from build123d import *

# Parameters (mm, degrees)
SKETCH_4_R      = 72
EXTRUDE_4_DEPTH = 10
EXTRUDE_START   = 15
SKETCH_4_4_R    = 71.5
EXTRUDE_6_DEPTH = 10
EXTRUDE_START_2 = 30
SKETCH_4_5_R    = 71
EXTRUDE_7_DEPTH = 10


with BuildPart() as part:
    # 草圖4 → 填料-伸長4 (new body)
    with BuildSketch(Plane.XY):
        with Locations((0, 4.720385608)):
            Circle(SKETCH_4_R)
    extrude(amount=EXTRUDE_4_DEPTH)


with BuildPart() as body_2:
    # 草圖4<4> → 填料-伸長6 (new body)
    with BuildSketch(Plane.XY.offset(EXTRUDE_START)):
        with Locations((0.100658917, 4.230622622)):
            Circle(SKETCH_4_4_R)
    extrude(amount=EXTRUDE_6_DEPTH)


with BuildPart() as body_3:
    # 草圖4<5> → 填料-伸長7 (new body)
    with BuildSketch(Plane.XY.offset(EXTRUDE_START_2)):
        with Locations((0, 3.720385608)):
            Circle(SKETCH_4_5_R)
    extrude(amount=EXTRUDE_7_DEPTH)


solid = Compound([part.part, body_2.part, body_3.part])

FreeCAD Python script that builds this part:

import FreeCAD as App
import Part
import Sketcher
from FreeCAD import Vector

doc = App.newDocument("Part")
params = doc.addObject("Spreadsheet::Sheet", "Params")
for row, (alias, value) in enumerate([
    ("sketch1_diameter", "144 mm"),
    ("pad1_length", "10 mm"),
    ("sketch2_diameter", "143 mm"),
    ("pad2_length", "10 mm"),
    ("sketch3_diameter", "142 mm"),
    ("pad3_length", "10 mm"),
], start=1):
    params.set(f"A{row}", alias)
    params.set(f"B{row}", "=" + value)
    params.setAlias(f"B{row}", alias)

body = doc.addObject("PartDesign::Body", "Body")

sketch1 = doc.addObject("Sketcher::SketchObject", "Sketch")
body.addObject(sketch1)
sketch1.AttachmentSupport = (doc.XY_Plane, [""])
sketch1.MapMode = "FlatFace"
sketch1.addGeometry(Part.Circle(Vector(0, 4.720386, 0), Vector(0, 0, 1), 72), False)
sketch1.addConstraint([
    Sketcher.Constraint("PointOnObject", 0, 3, -2),
    Sketcher.Constraint("Diameter", 0, 144.0),
    Sketcher.Constraint("DistanceY", -1, 1, 0, 3, 4.720386),
])
sketch1.setExpression("Constraints[1]", "Params.sketch1_diameter")
pad1 = doc.addObject("PartDesign::Pad", "Pad")
body.addObject(pad1)
pad1.Profile = sketch1
pad1.setExpression("Length", "Params.pad1_length")
body2 = doc.addObject("PartDesign::Body", "Body001")

sketch2 = doc.addObject("Sketcher::SketchObject", "Sketch001")
body2.addObject(sketch2)
sketch2.AttachmentSupport = (doc.getObject("XY_Plane001"), [""])
sketch2.MapMode = "FlatFace"
sketch2.AttachmentOffset = App.Placement(Vector(0, 0, 15), App.Rotation())
sketch2.addGeometry(Part.Circle(Vector(0.100659, 4.230623, 0), Vector(0, 0, 1), 71.5), False)
sketch2.addConstraint([
    Sketcher.Constraint("Diameter", 0, 143.0),
    Sketcher.Constraint("DistanceX", -1, 1, 0, 3, 0.100659),
    Sketcher.Constraint("DistanceY", -1, 1, 0, 3, 4.230623),
])
sketch2.setExpression("Constraints[0]", "Params.sketch2_diameter")
pad2 = doc.addObject("PartDesign::Pad", "Pad001")
body2.addObject(pad2)
pad2.Profile = sketch2
pad2.setExpression("Length", "Params.pad2_length")
body3 = doc.addObject("PartDesign::Body", "Body002")

sketch3 = doc.addObject("Sketcher::SketchObject", "Sketch002")
body3.addObject(sketch3)
sketch3.AttachmentSupport = (doc.getObject("XY_Plane002"), [""])
sketch3.MapMode = "FlatFace"
sketch3.AttachmentOffset = App.Placement(Vector(0, 0, 30), App.Rotation())
sketch3.addGeometry(Part.Circle(Vector(0, 3.720386, 0), Vector(0, 0, 1), 71), False)
sketch3.addConstraint([
    Sketcher.Constraint("PointOnObject", 0, 3, -2),
    Sketcher.Constraint("Diameter", 0, 142.0),
    Sketcher.Constraint("DistanceY", -1, 1, 0, 3, 3.720386),
])
sketch3.setExpression("Constraints[1]", "Params.sketch3_diameter")
pad3 = doc.addObject("PartDesign::Pad", "Pad002")
body3.addObject(pad3)
pad3.Profile = sketch3
pad3.setExpression("Length", "Params.pad3_length")

doc.recompute()
